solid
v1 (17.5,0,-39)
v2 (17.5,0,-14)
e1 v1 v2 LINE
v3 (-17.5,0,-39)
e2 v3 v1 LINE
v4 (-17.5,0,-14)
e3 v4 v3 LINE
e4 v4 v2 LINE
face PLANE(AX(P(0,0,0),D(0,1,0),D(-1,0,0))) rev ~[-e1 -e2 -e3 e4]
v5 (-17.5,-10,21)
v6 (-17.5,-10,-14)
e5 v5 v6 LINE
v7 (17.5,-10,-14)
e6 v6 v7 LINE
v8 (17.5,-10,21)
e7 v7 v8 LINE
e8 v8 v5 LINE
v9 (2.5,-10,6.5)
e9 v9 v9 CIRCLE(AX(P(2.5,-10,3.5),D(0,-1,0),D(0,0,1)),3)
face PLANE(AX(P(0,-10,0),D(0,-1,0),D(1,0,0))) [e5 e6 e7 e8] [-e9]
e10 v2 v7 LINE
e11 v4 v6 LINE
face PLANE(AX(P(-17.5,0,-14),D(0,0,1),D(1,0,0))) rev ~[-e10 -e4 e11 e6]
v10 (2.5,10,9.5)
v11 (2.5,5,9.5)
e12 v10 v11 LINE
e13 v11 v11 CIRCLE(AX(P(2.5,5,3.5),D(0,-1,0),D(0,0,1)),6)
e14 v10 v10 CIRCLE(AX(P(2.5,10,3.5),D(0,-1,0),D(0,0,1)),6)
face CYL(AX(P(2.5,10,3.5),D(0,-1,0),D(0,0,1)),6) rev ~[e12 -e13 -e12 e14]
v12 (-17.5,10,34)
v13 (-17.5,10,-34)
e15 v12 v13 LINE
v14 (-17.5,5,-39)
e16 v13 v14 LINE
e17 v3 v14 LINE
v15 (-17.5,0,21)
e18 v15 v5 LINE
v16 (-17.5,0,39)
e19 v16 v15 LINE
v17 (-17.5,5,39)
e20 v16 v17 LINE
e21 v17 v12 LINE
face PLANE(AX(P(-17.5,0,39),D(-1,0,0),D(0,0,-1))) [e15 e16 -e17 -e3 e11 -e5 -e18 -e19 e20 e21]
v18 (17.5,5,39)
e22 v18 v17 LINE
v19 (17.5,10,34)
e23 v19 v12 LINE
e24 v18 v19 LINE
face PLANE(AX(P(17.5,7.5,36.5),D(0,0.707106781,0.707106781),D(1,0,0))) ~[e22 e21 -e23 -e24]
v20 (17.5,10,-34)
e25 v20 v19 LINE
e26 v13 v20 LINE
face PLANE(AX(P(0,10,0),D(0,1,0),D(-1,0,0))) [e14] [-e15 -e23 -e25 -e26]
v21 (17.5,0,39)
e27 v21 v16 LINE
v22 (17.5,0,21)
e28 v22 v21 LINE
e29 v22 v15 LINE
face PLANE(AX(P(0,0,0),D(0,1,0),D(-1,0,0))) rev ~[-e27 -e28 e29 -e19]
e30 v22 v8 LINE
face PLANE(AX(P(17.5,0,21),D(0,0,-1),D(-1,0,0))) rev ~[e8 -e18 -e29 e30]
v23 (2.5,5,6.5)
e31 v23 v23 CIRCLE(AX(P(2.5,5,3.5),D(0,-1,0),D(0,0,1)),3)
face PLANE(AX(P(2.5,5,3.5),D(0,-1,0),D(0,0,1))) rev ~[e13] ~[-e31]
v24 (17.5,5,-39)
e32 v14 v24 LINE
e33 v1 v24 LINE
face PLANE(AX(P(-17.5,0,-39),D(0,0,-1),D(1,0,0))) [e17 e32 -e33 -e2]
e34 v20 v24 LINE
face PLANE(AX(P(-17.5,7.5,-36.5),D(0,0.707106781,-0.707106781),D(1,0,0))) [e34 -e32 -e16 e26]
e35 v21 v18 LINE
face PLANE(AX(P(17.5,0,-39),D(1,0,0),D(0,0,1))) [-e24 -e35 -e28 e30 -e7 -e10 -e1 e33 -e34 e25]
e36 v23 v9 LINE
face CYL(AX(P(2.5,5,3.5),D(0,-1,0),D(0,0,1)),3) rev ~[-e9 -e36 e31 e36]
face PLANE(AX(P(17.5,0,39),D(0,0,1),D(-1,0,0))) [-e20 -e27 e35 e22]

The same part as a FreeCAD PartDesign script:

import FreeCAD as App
import Part
import Sketcher

V = App.Vector


def edges_at(feature, points):
    """Names of the edges that pass closest to the given points."""
    edges = feature.Shape.Edges
    near = lambda p: min(range(len(edges)), key=lambda i: edges[i].distToShape(Part.Vertex(*p))[0])
    return sorted({f"Edge{near(p) + 1}" for p in points})

doc = App.newDocument("Part")
params = doc.addObject("Spreadsheet::Sheet", "Params")
for row, (alias, value) in enumerate([
    ("sketch1_width", "35 mm"),
    ("sketch1_height", "78 mm"),
    ("pad1_length", "10 mm"),
    ("sketch2_width", "35 mm"),
    ("pad2_length", "10 mm"),
    ("sketch3_diameter", "6 mm"),
    ("hole_diameter", "6 mm"),
    ("hole_cbore_diameter", "12 mm"),
    ("hole_cbore_depth", "5 mm"),
    ("chamfer_size", "5 mm"),
], start=1):
    params.set(f"A{row}", alias)
    params.set(f"B{row}", "=" + value)
    params.setAlias(f"B{row}", alias)

body = doc.addObject("PartDesign::Body", "Body")

sketch1 = body.newObject("Sketcher::SketchObject", "Sketch")
sketch1.AttachmentSupport = (doc.getObject("XZ_Plane"), [""])
sketch1.MapMode = "FlatFace"
sketch1.addGeometry(Part.LineSegment(V(-18, 39, 0), V(18, 39, 0)), False)
sketch1.addGeometry(Part.LineSegment(V(18, 39, 0), V(18, -39, 0)), False)
sketch1.addGeometry(Part.LineSegment(V(18, -39, 0), V(-18, -39, 0)), False)
sketch1.addGeometry(Part.LineSegment(V(-18, -39, 0), V(-18, 39, 0)), False)
sketch1.addConstraint(Sketcher.Constraint("Coincident", 0, 2, 1, 1))
sketch1.addConstraint(Sketcher.Constraint("Coincident", 1, 2, 2, 1))
sketch1.addConstraint(Sketcher.Constraint("Coincident", 2, 2, 3, 1))
sketch1.addConstraint(Sketcher.Constraint("Coincident", 3, 2, 0, 1))
sketch1.addConstraint(Sketcher.Constraint("Horizontal", 0))
sketch1.addConstraint(Sketcher.Constraint("Vertical", 1))
sketch1.addConstraint(Sketcher.Constraint("Horizontal", 2))
sketch1.addConstraint(Sketcher.Constraint("Vertical", 3))
sketch1.addConstraint(Sketcher.Constraint("Symmetric", 0, 2, 2, 2, -1, 1))
sketch1.addConstraint(Sketcher.Constraint("DistanceX", 0, 1, 0, 2, 35.0))
sketch1.addConstraint(Sketcher.Constraint("DistanceY", 1, 2, 1, 1, 78.0))
sketch1.setExpression("Constraints[9]", "Params.sketch1_width")
sketch1.setExpression("Constraints[10]", "Params.sketch1_height")
pad1 = body.newObject("PartDesign::Pad", "Pad")
pad1.Profile = sketch1
pad1.setExpression("Length", "Params.pad1_length")
pad1.Reversed = True

sketch2 = body.newObject("Sketcher::SketchObject", "Sketch001")
sketch2.AttachmentSupport = (doc.getObject("XZ_Plane"), [""])
sketch2.MapMode = "FlatFace"
sketch2.addGeometry(Part.LineSegment(V(18, -14, 0), V(18, 21, 0)), False)
sketch2.addGeometry(Part.LineSegment(V(18, 21, 0), V(-18, 21, 0)), False)
sketch2.addGeometry(Part.LineSegment(V(-18, 21, 0), V(-18, -14, 0)), False)
sketch2.addGeometry(Part.LineSegment(V(-18, -14, 0), V(18, -14, 0)), False)
sketch2.addConstraint(Sketcher.Constraint("Coincident", 0, 2, 1, 1))
sketch2.addConstraint(Sketcher.Constraint("Coincident", 1, 2, 2, 1))
sketch2.addConstraint(Sketcher.Constraint("Coincident", 2, 2, 3, 1))
sketch2.addConstraint(Sketcher.Constraint("Coincident", 3, 2, 0, 1))
sketch2.addConstraint(Sketcher.Constraint("Vertical", 0))
sketch2.addConstraint(Sketcher.Constraint("Horizontal", 1))
sketch2.addConstraint(Sketcher.Constraint("Vertical", 2))
sketch2.addConstraint(Sketcher.Constraint("Horizontal", 3))
sketch2.addConstraint(Sketcher.Constraint("Equal", 3, 0))
sketch2.addConstraint(Sketcher.Constraint("DistanceX", 1, 2, 1, 1, 35.0))
sketch2.addConstraint(Sketcher.Constraint("DistanceY", -1, 1, 0, 2, 21.0))
sketch2.addConstraint(Sketcher.Constraint("DistanceX", -1, 1, 0, 2, 17.5))
sketch2.setExpression("Constraints[9]", "Params.sketch2_width")
pad2 = body.newObject("PartDesign::Pad", "Pad001")
pad2.Profile = sketch2
pad2.setExpression("Length", "Params.pad2_length")

sketch3 = body.newObject("Sketcher::SketchObject", "Sketch002")
sketch3.AttachmentSupport = (doc.getObject("XZ_Plane"), [""])
sketch3.MapMode = "FlatFace"
sketch3.AttachmentOffset = App.Placement(V(0, 0, -10), App.Rotation())
sketch3.addGeometry(Part.Circle(V(2.5, 3.5, 0), V(0, 0, 1), 3), False)
sketch3.addConstraint(Sketcher.Constraint("Diameter", 0, 6.0))
sketch3.addConstraint(Sketcher.Constraint("DistanceX", -1, 1, 0, 3, 2.5))
sketch3.addConstraint(Sketcher.Constraint("DistanceY", -1, 1, 0, 3, 3.5))
sketch3.setExpression("Constraints[0]", "Params.sketch3_diameter")
doc.recompute()
hole = body.newObject("PartDesign::Hole", "Hole")
hole.Profile = sketch3
hole.ThreadType = "None"
hole.setExpression("Diameter", "Params.hole_diameter")
hole.DepthType = "ThroughAll"
hole.HoleCutType = "Counterbore"
hole.setExpression("HoleCutDiameter", "Params.hole_cbore_diameter")
hole.setExpression("HoleCutDepth", "Params.hole_cbore_depth")
hole.Reversed = True
doc.recompute()

chamfer = body.newObject("PartDesign::Chamfer", "Chamfer")
chamfer.Base = (hole, edges_at(hole, [(0, 10, 39), (0, 10, -39)]))
chamfer.setExpression("Size", "Params.chamfer_size")

doc.recompute()
